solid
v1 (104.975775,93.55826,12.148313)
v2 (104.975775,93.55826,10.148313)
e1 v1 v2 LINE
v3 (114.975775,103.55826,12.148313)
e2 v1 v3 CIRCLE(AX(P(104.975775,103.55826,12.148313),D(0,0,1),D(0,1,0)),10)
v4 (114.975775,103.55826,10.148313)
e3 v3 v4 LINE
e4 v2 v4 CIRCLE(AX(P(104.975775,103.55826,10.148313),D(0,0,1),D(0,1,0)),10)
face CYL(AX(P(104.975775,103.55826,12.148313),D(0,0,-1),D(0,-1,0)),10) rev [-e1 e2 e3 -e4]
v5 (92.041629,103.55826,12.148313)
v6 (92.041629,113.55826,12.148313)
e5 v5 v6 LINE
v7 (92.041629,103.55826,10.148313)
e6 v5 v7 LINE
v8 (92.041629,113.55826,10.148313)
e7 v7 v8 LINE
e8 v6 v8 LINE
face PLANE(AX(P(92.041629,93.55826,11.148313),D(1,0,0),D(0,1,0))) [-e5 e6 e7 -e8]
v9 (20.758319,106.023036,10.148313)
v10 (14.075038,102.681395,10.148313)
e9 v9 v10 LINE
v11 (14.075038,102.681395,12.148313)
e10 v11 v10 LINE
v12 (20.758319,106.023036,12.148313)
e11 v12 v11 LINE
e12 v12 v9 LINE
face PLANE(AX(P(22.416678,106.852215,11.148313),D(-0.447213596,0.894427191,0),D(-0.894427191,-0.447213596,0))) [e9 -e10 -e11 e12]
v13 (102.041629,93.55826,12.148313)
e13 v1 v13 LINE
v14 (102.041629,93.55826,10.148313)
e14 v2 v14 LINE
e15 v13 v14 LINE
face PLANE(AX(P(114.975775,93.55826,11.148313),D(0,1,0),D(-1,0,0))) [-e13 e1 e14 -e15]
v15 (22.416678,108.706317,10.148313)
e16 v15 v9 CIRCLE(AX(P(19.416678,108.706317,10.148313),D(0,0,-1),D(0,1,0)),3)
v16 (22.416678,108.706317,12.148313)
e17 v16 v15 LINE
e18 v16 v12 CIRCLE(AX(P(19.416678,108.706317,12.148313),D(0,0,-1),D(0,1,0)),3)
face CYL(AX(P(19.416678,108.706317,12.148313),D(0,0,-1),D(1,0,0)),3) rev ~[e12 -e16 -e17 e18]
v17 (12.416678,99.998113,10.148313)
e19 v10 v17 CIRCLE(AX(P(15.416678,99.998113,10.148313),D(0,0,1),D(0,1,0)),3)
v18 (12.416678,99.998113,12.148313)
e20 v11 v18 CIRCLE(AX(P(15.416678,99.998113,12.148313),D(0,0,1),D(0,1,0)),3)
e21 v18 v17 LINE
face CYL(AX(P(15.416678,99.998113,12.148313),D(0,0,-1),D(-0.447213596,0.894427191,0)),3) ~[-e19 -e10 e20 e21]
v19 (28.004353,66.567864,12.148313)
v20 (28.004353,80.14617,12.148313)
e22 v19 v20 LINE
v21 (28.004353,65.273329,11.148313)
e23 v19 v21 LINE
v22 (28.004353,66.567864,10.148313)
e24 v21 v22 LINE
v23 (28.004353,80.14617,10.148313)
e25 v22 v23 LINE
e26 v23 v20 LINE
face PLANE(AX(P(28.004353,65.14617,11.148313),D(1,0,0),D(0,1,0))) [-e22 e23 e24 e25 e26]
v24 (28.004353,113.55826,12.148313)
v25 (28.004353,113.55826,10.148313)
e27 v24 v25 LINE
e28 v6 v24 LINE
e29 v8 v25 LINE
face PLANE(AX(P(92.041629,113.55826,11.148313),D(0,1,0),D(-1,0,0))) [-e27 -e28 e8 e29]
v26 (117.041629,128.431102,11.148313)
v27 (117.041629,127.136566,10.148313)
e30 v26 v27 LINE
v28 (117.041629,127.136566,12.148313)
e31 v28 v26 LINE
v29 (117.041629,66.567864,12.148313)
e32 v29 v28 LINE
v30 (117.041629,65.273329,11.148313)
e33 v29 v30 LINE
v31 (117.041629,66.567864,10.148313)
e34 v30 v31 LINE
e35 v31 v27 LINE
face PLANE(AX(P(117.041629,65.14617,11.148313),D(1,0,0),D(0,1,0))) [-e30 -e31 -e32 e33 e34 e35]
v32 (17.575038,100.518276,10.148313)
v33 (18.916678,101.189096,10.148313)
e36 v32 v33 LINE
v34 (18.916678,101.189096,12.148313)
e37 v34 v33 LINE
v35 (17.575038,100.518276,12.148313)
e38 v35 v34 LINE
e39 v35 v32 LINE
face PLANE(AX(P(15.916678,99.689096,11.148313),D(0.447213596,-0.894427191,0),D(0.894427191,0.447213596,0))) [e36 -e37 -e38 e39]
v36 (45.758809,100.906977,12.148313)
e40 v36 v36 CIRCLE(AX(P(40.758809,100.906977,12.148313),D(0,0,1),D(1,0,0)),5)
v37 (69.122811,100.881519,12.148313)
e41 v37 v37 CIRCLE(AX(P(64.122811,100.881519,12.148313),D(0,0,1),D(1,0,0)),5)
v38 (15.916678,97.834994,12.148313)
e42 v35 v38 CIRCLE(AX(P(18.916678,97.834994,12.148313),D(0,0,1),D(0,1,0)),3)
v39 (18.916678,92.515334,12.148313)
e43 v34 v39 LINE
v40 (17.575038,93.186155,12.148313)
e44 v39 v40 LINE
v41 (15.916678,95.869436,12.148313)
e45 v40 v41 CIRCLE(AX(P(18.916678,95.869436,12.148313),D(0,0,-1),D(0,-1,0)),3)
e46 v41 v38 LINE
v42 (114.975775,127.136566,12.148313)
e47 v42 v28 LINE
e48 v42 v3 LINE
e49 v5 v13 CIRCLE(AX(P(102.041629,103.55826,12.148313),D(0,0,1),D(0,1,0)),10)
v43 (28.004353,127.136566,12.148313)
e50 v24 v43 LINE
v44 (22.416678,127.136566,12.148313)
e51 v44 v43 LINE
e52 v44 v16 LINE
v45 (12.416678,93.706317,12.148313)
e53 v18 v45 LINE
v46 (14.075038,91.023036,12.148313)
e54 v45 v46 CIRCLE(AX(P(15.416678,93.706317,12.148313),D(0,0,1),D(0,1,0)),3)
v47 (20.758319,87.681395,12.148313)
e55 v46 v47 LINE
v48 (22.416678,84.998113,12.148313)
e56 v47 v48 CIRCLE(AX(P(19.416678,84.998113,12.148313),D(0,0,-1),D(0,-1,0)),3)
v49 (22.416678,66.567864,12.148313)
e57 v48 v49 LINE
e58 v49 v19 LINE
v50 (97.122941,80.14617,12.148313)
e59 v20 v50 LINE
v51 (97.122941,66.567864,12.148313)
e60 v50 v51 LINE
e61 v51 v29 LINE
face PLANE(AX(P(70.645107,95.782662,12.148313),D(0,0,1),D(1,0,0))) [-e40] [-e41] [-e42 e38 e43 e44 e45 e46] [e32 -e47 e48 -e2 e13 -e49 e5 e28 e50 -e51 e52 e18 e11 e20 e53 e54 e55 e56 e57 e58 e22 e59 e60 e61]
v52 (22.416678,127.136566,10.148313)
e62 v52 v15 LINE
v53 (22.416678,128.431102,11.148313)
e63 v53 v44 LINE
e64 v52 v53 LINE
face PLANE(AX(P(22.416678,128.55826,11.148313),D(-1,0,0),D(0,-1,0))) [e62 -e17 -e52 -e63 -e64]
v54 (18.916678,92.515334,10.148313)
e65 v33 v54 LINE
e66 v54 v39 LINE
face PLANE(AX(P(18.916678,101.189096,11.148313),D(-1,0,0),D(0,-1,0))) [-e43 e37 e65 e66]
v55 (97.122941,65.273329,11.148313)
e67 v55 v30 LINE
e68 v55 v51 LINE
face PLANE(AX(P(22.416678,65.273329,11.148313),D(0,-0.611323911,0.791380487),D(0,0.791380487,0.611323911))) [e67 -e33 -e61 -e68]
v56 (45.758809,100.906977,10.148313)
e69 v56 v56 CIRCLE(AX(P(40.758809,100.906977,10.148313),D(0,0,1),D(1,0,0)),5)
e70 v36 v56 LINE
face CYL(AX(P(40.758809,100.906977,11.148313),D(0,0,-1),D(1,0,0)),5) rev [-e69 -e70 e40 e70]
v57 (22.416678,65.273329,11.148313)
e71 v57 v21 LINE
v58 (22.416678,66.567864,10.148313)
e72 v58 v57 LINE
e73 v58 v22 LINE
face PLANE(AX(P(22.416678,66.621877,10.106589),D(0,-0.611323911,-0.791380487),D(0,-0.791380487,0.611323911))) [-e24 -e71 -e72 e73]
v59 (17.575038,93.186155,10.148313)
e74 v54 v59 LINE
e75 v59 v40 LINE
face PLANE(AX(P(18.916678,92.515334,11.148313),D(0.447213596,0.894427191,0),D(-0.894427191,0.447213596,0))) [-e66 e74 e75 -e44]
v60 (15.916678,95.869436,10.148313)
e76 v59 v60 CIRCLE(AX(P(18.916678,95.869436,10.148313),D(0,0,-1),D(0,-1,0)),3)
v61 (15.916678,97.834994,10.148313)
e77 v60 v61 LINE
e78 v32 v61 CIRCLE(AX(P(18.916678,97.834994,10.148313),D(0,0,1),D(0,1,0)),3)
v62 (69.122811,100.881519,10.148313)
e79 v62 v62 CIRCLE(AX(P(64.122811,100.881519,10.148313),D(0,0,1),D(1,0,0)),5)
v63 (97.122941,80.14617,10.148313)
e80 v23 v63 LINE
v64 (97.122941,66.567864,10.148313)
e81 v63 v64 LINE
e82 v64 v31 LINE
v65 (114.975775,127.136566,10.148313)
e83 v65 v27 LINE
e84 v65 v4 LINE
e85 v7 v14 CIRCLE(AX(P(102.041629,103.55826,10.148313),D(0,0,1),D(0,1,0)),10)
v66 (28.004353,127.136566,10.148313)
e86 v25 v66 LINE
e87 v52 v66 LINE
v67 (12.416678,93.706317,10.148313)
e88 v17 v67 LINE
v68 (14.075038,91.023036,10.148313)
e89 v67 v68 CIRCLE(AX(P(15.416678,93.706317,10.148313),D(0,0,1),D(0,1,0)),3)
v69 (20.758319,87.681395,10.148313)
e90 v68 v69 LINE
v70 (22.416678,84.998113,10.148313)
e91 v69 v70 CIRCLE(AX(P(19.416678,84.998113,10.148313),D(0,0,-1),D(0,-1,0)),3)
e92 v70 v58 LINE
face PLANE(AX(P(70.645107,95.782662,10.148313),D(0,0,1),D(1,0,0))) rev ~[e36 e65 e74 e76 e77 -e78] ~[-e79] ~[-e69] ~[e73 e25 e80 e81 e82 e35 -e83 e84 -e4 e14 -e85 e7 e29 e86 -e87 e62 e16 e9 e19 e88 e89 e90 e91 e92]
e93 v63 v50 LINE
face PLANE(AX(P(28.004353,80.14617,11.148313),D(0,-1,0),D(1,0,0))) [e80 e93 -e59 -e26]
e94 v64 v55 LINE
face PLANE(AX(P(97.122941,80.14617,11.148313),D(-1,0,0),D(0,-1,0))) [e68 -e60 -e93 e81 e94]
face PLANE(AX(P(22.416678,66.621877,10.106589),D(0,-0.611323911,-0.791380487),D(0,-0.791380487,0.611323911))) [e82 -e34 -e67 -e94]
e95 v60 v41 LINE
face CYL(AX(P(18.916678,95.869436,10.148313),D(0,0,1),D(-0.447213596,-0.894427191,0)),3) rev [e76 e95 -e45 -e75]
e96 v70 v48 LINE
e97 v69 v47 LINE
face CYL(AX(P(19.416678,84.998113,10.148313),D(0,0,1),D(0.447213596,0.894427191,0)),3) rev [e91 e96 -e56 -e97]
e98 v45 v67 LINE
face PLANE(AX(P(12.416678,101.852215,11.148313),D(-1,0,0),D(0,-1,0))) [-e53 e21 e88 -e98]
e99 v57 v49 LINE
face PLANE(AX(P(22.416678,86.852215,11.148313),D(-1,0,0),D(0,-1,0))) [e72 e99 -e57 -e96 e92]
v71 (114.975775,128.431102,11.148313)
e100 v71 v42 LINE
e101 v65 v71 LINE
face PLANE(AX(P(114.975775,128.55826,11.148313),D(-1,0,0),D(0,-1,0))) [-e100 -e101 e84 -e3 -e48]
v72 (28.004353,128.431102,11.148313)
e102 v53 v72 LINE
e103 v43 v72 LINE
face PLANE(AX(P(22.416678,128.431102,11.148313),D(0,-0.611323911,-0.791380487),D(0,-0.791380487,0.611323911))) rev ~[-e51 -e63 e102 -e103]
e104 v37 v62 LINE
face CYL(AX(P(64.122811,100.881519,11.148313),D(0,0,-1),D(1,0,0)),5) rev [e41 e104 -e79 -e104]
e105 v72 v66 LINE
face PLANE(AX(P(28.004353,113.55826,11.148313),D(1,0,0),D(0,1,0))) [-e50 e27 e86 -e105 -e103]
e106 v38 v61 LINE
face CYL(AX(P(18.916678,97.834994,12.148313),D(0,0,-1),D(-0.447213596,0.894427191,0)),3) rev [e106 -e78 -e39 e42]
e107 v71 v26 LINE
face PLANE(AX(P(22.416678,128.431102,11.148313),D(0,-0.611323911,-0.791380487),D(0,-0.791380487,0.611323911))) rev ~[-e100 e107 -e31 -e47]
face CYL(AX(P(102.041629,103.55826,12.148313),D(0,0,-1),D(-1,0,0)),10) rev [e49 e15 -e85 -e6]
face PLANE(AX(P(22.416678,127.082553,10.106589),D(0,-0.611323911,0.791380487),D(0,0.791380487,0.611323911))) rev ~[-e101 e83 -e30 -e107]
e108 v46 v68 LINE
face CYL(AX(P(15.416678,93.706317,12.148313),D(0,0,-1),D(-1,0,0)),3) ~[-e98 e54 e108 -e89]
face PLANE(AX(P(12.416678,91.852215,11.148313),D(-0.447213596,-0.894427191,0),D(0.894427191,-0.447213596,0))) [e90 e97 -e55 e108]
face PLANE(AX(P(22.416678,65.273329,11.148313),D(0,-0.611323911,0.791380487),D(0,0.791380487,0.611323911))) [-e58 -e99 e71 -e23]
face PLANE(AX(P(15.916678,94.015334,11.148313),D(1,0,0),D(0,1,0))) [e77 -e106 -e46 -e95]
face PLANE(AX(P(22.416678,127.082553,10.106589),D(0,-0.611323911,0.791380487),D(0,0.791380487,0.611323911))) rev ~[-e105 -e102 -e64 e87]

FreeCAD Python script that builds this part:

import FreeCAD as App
import Part
import Sketcher


def edges_at(feature, points):
    """Names of the edges that pass closest to the given points."""
    edges = feature.Shape.Edges
    near = lambda p: min(range(len(edges)), key=lambda i: edges[i].distToShape(Part.Vertex(*p))[0])
    return sorted({f"Edge{near(p) + 1}" for p in points})


def add_polygon(sketch, points):
    """Adds a closed chain of lines whose ends are joined by coincident constraints."""
    first, n = sketch.GeometryCount, len(points)
    for a, b in zip(points, points[1:] + points[:1]):
        sketch.addGeometry(Part.LineSegment(App.Vector(*a, 0), App.Vector(*b, 0)), False)
    for i in range(n):
        sketch.addConstraint(Sketcher.Constraint("Coincident", first + i, 2, first + (i + 1) % n, 1))

doc = App.newDocument("Part")
body = doc.addObject("PartDesign::Body", "Body")

# Sketch on XY plane
sketch1 = doc.addObject("Sketcher::SketchObject", "Sketch")
body.addObject(sketch1)
sketch1.AttachmentSupport = (doc.XY_Plane, [""])
sketch1.MapMode = "FlatFace"
sketch1.AttachmentOffset = App.Placement(App.Vector(0, 0, 11.148313), App.Rotation())
add_polygon(sketch1, [(12.4, 91.9), (22.4, 86.9), (22.4, 65.1), (28, 65.1), (28, 80.1), (97.1, 80.1), (97.1, 65.1), (117, 65.1), (117, 128.6), (115, 128.6), (115, 93.6), (92, 93.6), (92, 113.6), (28, 113.6), (28, 128.6), (22.4, 128.6), (22.4, 106.9), (12.4, 101.9)])  # lines 0-17
add_polygon(sketch1, [(18.9, 101.2), (18.9, 92.5), (15.9, 94), (15.9, 99.7)])  # lines 18-21
sketch1.addGeometry(Part.Circle(App.Vector(40.8, 100.9, 0), App.Vector(0, 0, 1), 5), False)  # 22
sketch1.addGeometry(Part.Circle(App.Vector(64.1, 100.9, 0), App.Vector(0, 0, 1), 5), False)  # 23
sketch1.addConstraint(Sketcher.Constraint("Vertical", 1))
sketch1.addConstraint(Sketcher.Constraint("Horizontal", 2))
sketch1.addConstraint(Sketcher.Constraint("Vertical", 3))
sketch1.addConstraint(Sketcher.Constraint("Horizontal", 4))
sketch1.addConstraint(Sketcher.Constraint("Vertical", 5))
sketch1.addConstraint(Sketcher.Constraint("Horizontal", 6))
sketch1.addConstraint(Sketcher.Constraint("Vertical", 7))
sketch1.addConstraint(Sketcher.Constraint("Horizontal", 8))
sketch1.addConstraint(Sketcher.Constraint("Vertical", 9))
sketch1.addConstraint(Sketcher.Constraint("Horizontal", 10))
sketch1.addConstraint(Sketcher.Constraint("Vertical", 11))
sketch1.addConstraint(Sketcher.Constraint("Horizontal", 12))
sketch1.addConstraint(Sketcher.Constraint("Vertical", 13))
sketch1.addConstraint(Sketcher.Constraint("Horizontal", 14))
sketch1.addConstraint(Sketcher.Constraint("Vertical", 15))
sketch1.addConstraint(Sketcher.Constraint("Vertical", 17))
sketch1.addConstraint(Sketcher.Constraint("Vertical", 18))
sketch1.addConstraint(Sketcher.Constraint("Vertical", 20))
sketch1.addConstraint(Sketcher.Constraint("Equal", 22, 23))
sketch1.addConstraint(Sketcher.Constraint("Parallel", 0, 19))
sketch1.addConstraint(Sketcher.Constraint("Parallel", 16, 21))
sketch1.addConstraint(Sketcher.Constraint("Horizontal", 2, 2, 5, 2))
sketch1.addConstraint(Sketcher.Constraint("Horizontal", 8, 2, 13, 2))
sketch1.addConstraint(Sketcher.Constraint("Vertical", 3, 2, 12, 2))
sketch1.addConstraint(Sketcher.Constraint("Vertical", 1, 2, 14, 2))
sketch1.addConstraint(Sketcher.Constraint("Equal", 5, 13))
sketch1.addConstraint(Sketcher.Constraint("Equal", 1, 15))
sketch1.addConstraint(Sketcher.Constraint("Equal", 0, 16))
sketch1.addConstraint(Sketcher.Constraint("Diameter", 22, 10.0))
sketch1.addConstraint(Sketcher.Constraint("DistanceY", 3, 1, 3, 2, 15.0))
sketch1.addConstraint(Sketcher.Constraint("DistanceY", 9, 2, 9, 1, 35.0))
sketch1.addConstraint(Sketcher.Constraint("DistanceY", 17, 2, 17, 1, 10.0))
sketch1.addConstraint(Sketcher.Constraint("DistanceX", 10, 2, 6, 2, 25.0))
sketch1.addConstraint(Sketcher.Constraint("DistanceY", 0, 2, 15, 2, 20.0))
sketch1.addConstraint(Sketcher.Constraint("DistanceX", 16, 2, 15, 2, 10.0))
sketch1.addConstraint(Sketcher.Constraint("DistanceX", 19, 2, 18, 2, 3.0))
sketch1.addConstraint(Sketcher.Constraint("DistanceX", 17, 2, 18, 2, 6.5))
sketch1.addConstraint(Sketcher.Constraint("DistanceX", 22, 3, 23, 3, 23.364002))
sketch1.addConstraint(Sketcher.Constraint("DistanceX", 6, 1, 6, 2, 19.918688))
sketch1.addConstraint(Sketcher.Constraint("DistanceY", 7, 1, 7, 2, 63.41209))
sketch1.addConstraint(Sketcher.Constraint("DistanceX", 2, 1, 2, 2, 5.587675))
sketch1.addConstraint(Sketcher.Constraint("DistanceX", 4, 1, 4, 2, 69.118587))
sketch1.addConstraint(Sketcher.Constraint("DistanceX", 8, 2, 8, 1, 2.065854))
sketch1.addConstraint(Sketcher.Constraint("DistanceY", 18, 2, 18, 1, 8.673762))
sketch1.addConstraint(Sketcher.Constraint("DistanceX", -1, 1, 22, 3, 40.758809))
sketch1.addConstraint(Sketcher.Constraint("DistanceY", -1, 1, 23, 3, 100.881519))
sketch1.addConstraint(Sketcher.Constraint("DistanceX", -1, 1, 0, 2, 22.416678))
sketch1.addConstraint(Sketcher.Constraint("DistanceY", -1, 1, 1, 2, 65.14617))
sketch1.addConstraint(Sketcher.Constraint("DistanceY", 17, 2, 18, 2, 0.663119))
sketch1.addConstraint(Sketcher.Constraint("DistanceY", -1, 1, 22, 3, 100.906977))
pad1 = doc.addObject("PartDesign::Pad", "Pad")
body.addObject(pad1)
pad1.Profile = sketch1
pad1.Length = 2
pad1.Midplane = True

# Sketch on YZ plane
sketch2 = doc.addObject("Sketcher::SketchObject", "Sketch001")
body.addObject(sketch2)
sketch2.AttachmentSupport = (doc.YZ_Plane, [""])
sketch2.MapMode = "FlatFace"
sketch2.AttachmentOffset = App.Placement(App.Vector(0, 0, 22.416678), App.Rotation())
add_polygon(sketch2, [(128.6, 10.1), (127.1, 10.1), (128.4, 11.1), (127.1, 12.2), (128.6, 12.2)])  # lines 0-4
add_polygon(sketch2, [(65.1, 12.2), (66.6, 12.2), (65.3, 11.1), (66.6, 10.1), (65.1, 10.1)])  # lines 5-9
sketch2.addConstraint(Sketcher.Constraint("Horizontal", 0))
sketch2.addConstraint(Sketcher.Constraint("Horizontal", 3))
sketch2.addConstraint(Sketcher.Constraint("Vertical", 4))
sketch2.addConstraint(Sketcher.Constraint("Horizontal", 5))
sketch2.addConstraint(Sketcher.Constraint("Horizontal", 8))
sketch2.addConstraint(Sketcher.Constraint("Vertical", 9))
sketch2.addConstraint(Sketcher.Constraint("Parallel", 1, 6))
sketch2.addConstraint(Sketcher.Constraint("Parallel", 2, 7))
sketch2.addConstraint(Sketcher.Constraint("Horizontal", 3, 2, 5, 2))
sketch2.addConstraint(Sketcher.Constraint("Horizontal", 1, 2, 6, 2))
sketch2.addConstraint(Sketcher.Constraint("Horizontal", 4, 2, 7, 2))
sketch2.addConstraint(Sketcher.Constraint("Vertical", 0, 2, 2, 2))
sketch2.addConstraint(Sketcher.Constraint("Vertical", 5, 2, 7, 2))
sketch2.addConstraint(Sketcher.Constraint("Equal", 3, 5))
sketch2.addConstraint(Sketcher.Constraint("DistanceX", -1, 1, 1, 2, 128.431102))
sketch2.addConstraint(Sketcher.Constraint("DistanceX", 0, 2, 0, 1, 1.475707))
sketch2.addConstraint(Sketcher.Constraint("DistanceY", 4, 2, 4, 1, 2.083448))
sketch2.addConstraint(Sketcher.Constraint("DistanceY", -1, 1, 0, 2, 10.106589))
sketch2.addConstraint(Sketcher.Constraint("DistanceX", -1, 1, 3, 2, 128.55826))
sketch2.addConstraint(Sketcher.Constraint("DistanceX", -1, 1, 6, 2, 65.273329))
pocket1 = doc.addObject("PartDesign::Pocket", "Pocket")
body.addObject(pocket1)
pocket1.Profile = sketch2
pocket1.Type = "ThroughAll"
pocket1.Reversed = True
doc.recompute()

fillet = doc.addObject("PartDesign::Fillet", "Fillet")
body.addObject(fillet)
fillet.Base = (pocket1, edges_at(pocket1, [(92.042, 93.558, 11.148), (114.976, 93.558, 11.148)]))
fillet.Radius = 10
doc.recompute()

fillet2 = doc.addObject("PartDesign::Fillet", "Fillet001")
body.addObject(fillet2)
fillet2.Base = (fillet, edges_at(fillet, [
    (15.917, 94.015, 11.148),
    (15.917, 99.689, 11.148),
    (22.417, 86.852, 11.148),
    (12.417, 91.852, 11.148),
    (12.417, 101.852, 11.148),
    (22.417, 106.852, 11.148),
]))
fillet2.Radius = 3

doc.recompute()
